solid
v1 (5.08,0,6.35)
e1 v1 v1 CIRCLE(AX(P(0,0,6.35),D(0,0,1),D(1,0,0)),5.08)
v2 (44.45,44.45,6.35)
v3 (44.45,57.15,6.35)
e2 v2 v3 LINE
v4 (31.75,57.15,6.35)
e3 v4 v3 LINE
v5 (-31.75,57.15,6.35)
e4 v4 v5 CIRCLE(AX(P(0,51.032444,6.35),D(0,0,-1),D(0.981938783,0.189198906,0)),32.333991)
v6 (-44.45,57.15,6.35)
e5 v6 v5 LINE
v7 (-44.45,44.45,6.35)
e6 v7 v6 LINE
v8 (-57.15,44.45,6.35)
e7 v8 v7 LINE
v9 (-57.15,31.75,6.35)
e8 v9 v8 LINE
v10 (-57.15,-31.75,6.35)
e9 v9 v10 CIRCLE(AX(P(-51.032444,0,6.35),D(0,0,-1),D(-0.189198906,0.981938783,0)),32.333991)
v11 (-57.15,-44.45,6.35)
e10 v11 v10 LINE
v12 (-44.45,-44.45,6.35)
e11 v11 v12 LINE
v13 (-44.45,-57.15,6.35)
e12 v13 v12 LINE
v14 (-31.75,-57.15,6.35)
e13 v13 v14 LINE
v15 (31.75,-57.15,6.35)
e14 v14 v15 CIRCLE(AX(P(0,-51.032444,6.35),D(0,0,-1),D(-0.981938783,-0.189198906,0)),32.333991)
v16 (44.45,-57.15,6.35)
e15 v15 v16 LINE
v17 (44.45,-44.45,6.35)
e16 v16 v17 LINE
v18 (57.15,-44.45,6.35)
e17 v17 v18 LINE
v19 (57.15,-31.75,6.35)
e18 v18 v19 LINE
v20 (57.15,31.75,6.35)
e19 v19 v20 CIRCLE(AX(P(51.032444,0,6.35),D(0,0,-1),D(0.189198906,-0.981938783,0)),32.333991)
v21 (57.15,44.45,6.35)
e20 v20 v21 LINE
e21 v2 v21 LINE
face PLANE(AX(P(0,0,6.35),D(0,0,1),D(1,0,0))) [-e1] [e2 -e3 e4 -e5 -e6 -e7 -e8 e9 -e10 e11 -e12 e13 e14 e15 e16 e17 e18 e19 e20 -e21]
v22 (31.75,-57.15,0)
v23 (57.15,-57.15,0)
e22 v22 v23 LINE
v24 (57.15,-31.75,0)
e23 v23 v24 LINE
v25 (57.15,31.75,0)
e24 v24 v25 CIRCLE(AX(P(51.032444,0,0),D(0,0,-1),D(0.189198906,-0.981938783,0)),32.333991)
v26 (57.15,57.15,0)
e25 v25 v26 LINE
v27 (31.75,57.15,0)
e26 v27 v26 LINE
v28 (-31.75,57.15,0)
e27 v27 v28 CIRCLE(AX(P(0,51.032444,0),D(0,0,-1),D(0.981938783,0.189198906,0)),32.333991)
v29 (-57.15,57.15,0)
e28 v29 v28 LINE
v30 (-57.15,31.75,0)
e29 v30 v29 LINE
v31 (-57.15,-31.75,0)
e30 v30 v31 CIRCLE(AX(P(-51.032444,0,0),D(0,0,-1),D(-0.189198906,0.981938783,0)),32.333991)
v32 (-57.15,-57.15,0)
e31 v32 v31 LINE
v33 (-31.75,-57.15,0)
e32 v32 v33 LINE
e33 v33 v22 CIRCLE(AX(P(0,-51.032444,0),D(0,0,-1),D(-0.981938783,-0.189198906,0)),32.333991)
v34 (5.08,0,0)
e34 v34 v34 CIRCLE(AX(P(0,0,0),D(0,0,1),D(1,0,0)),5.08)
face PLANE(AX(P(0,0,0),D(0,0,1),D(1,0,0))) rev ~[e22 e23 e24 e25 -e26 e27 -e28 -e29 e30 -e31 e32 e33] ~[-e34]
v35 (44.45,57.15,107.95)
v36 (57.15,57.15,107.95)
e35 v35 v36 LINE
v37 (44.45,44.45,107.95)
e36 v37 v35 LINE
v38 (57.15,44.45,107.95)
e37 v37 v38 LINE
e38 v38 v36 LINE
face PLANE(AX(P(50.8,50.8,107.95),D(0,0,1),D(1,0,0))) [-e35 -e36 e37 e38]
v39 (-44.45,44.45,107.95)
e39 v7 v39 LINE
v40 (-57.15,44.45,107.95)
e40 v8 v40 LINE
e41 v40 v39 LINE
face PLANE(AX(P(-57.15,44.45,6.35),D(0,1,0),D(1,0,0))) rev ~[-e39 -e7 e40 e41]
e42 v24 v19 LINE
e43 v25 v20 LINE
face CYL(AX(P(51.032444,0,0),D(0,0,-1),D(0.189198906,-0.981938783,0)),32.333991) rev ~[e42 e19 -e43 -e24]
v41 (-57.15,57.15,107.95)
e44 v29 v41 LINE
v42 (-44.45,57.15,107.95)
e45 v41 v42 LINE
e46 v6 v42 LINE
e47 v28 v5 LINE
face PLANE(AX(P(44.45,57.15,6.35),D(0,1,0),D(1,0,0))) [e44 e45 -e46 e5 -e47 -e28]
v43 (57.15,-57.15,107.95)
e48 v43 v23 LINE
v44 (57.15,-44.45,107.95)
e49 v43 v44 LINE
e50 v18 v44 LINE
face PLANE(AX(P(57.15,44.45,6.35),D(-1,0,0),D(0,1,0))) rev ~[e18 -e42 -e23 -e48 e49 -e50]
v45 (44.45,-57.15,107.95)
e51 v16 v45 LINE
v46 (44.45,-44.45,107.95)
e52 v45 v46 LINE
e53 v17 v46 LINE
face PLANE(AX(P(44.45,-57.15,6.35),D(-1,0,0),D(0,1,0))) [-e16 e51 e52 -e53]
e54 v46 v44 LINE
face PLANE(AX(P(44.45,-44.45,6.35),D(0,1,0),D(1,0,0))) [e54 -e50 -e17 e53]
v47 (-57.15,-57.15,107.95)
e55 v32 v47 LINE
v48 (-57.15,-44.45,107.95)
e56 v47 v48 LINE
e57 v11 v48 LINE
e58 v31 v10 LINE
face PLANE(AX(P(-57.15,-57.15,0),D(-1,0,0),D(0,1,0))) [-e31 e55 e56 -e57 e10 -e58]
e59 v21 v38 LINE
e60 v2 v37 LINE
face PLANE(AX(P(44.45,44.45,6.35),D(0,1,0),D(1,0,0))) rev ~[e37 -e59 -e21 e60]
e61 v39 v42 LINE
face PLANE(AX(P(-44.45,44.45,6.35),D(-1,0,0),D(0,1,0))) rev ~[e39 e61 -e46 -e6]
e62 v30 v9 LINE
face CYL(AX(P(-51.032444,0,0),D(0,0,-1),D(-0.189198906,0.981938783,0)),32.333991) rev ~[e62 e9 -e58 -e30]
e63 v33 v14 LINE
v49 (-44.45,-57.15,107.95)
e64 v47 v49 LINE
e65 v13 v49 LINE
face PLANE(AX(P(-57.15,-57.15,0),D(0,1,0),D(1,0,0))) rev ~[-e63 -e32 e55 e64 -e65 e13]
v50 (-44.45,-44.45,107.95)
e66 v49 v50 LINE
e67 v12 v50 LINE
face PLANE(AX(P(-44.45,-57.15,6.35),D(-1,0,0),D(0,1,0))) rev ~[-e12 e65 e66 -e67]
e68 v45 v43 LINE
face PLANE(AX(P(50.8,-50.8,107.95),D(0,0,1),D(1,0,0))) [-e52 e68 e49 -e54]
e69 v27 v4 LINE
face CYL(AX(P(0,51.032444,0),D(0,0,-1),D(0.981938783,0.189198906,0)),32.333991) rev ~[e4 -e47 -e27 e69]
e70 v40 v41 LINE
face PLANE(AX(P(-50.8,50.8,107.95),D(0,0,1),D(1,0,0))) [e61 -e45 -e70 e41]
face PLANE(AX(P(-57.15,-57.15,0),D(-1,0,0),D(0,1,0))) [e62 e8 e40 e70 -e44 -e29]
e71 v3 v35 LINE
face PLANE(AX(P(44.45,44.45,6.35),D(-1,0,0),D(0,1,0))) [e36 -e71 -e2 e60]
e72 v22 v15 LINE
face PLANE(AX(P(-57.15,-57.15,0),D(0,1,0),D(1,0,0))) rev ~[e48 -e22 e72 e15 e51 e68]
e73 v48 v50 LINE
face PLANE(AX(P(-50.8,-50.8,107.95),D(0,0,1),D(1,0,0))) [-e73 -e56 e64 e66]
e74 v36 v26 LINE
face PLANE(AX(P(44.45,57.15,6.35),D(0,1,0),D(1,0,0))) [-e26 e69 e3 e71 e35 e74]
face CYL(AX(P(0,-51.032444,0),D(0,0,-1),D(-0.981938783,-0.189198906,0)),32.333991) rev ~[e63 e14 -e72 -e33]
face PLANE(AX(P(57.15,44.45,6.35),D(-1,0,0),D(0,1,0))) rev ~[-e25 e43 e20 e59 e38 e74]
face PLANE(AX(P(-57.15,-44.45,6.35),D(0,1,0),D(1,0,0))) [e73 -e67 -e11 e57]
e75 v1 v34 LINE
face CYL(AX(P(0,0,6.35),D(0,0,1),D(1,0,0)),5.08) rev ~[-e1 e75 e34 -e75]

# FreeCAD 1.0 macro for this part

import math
import FreeCAD as App
import Part
import Sketcher
Q = App.Units.Quantity

doc = App.newDocument("Part")
params = doc.addObject("Spreadsheet::Sheet", "Params")
for row, (alias, value) in enumerate([
    ("sketch1_width", "4.5 in"),
    ("pad1_length", "0.25 in"),
    ("sketch2_diameter", "0.4 in"),
    ("pocket1_length", "1 in"),
    ("sketch3_width", "0.5 in"),
    ("pad2_length", "4 in"),
    ("sketch4_width", "2.5 in"),
], start=1):
    params.set(f"A{row}", alias)
    params.set(f"B{row}", "=" + value)
    params.setAlias(f"B{row}", alias)

body = doc.addObject("PartDesign::Body", "Body")

# Sketch on XY plane
sketch1 = body.newObject("Sketcher::SketchObject", "Sketch")
sketch1.AttachmentSupport = (doc.getObject("XY_Plane"), [""])
sketch1.MapMode = "FlatFace"
sketch1.addGeometry([
    Part.LineSegment(App.Vector(-57.15, 57.15, 0), App.Vector(-57.15, -57.15, 0)),
    Part.LineSegment(App.Vector(-57.15, -57.15, 0), App.Vector(57.15, -57.15, 0)),
    Part.LineSegment(App.Vector(57.15, -57.15, 0), App.Vector(57.15, 57.15, 0)),
    Part.LineSegment(App.Vector(57.15, 57.15, 0), App.Vector(-57.15, 57.15, 0)),
], False)
sketch1.addConstraint([
    Sketcher.Constraint("Coincident", 0, 2, 1, 1),
    Sketcher.Constraint("Coincident", 1, 2, 2, 1),
    Sketcher.Constraint("Coincident", 2, 2, 3, 1),
    Sketcher.Constraint("Coincident", 3, 2, 0, 1),
    Sketcher.Constraint("Vertical", 0),
    Sketcher.Constraint("Horizontal", 1),
    Sketcher.Constraint("Vertical", 2),
    Sketcher.Constraint("Horizontal", 3),
    Sketcher.Constraint("Symmetric", 0, 2, 2, 2, -1, 1),
    Sketcher.Constraint("Equal", 3, 0),
    Sketcher.Constraint("DistanceX", 1, 1, 1, 2, Q("4.5 in")),
])
sketch1.setExpression("Constraints[10]", "Params.sketch1_width")
pad1 = body.newObject("PartDesign::Pad", "Pad")
pad1.Profile = sketch1
pad1.setExpression("Length", "Params.pad1_length")

# Sketch on XY plane
sketch2 = body.newObject("Sketcher::SketchObject", "Sketch001")
sketch2.AttachmentSupport = (doc.getObject("XY_Plane"), [""])
sketch2.MapMode = "FlatFace"
sketch2.AttachmentOffset = App.Placement(App.Vector(0, 0, 0.25 * 25.4), App.Rotation())
sketch2.addGeometry(Part.Circle(App.Vector(0, 0, 0), App.Vector(0, 0, 1), 5.08), False)
sketch2.addConstraint([
    Sketcher.Constraint("Coincident", 0, 3, -1, 1),
    Sketcher.Constraint("Diameter", 0, Q("0.4 in")),
])
sketch2.setExpression("Constraints[1]", "Params.sketch2_diameter")
pocket1 = body.newObject("PartDesign::Pocket", "Pocket")
pocket1.Profile = sketch2
pocket1.setExpression("Length", "Params.pocket1_length")

# Sketch on XY plane
sketch3 = body.newObject("Sketcher::SketchObject", "Sketch002")
sketch3.AttachmentSupport = (doc.getObject("XY_Plane"), [""])
sketch3.MapMode = "FlatFace"
sketch3.AttachmentOffset = App.Placement(App.Vector(0, 0, 0.25 * 25.4), App.Rotation())
sketch3.addGeometry([
    Part.LineSegment(App.Vector(44.45, 57.15, 0), App.Vector(44.45, 44.45, 0)),  # 0
    Part.LineSegment(App.Vector(44.45, 44.45, 0), App.Vector(57.15, 44.45, 0)),  # 1
    Part.LineSegment(App.Vector(57.15, 44.45, 0), App.Vector(57.15, 57.15, 0)),  # 2
    Part.LineSegment(App.Vector(57.15, 57.15, 0), App.Vector(44.45, 57.15, 0)),  # 3
    Part.LineSegment(App.Vector(-57.15, 57.15, 0), App.Vector(-57.15, 44.45, 0)),  # 4
    Part.LineSegment(App.Vector(-57.15, 44.45, 0), App.Vector(-44.45, 44.45, 0)),  # 5
    Part.LineSegment(App.Vector(-44.45, 44.45, 0), App.Vector(-44.45, 57.15, 0)),  # 6
    Part.LineSegment(App.Vector(-44.45, 57.15, 0), App.Vector(-57.15, 57.15, 0)),  # 7
    Part.LineSegment(App.Vector(-57.15, -44.45, 0), App.Vector(-57.15, -57.15, 0)),  # 8
    Part.LineSegment(App.Vector(-57.15, -57.15, 0), App.Vector(-44.45, -57.15, 0)),  # 9
    Part.LineSegment(App.Vector(-44.45, -57.15, 0), App.Vector(-44.45, -44.45, 0)),  # 10
    Part.LineSegment(App.Vector(-44.45, -44.45, 0), App.Vector(-57.15, -44.45, 0)),  # 11
    Part.LineSegment(App.Vector(44.45, -44.45, 0), App.Vector(44.45, -57.15, 0)),  # 12
    Part.LineSegment(App.Vector(44.45, -57.15, 0), App.Vector(57.15, -57.15, 0)),  # 13
    Part.LineSegment(App.Vector(57.15, -57.15, 0), App.Vector(57.15, -44.45, 0)),  # 14
    Part.LineSegment(App.Vector(57.15, -44.45, 0), App.Vector(44.45, -44.45, 0)),  # 15
], False)
sketch3.addConstraint([
    Sketcher.Constraint("Coincident", 0, 2, 1, 1),
    Sketcher.Constraint("Coincident", 1, 2, 2, 1),
    Sketcher.Constraint("Coincident", 2, 2, 3, 1),
    Sketcher.Constraint("Coincident", 3, 2, 0, 1),
    Sketcher.Constraint("Coincident", 4, 2, 5, 1),
    Sketcher.Constraint("Coincident", 5, 2, 6, 1),
    Sketcher.Constraint("Coincident", 6, 2, 7, 1),
    Sketcher.Constraint("Coincident", 7, 2, 4, 1),
    Sketcher.Constraint("Coincident", 8, 2, 9, 1),
    Sketcher.Constraint("Coincident", 9, 2, 10, 1),
    Sketcher.Constraint("Coincident", 10, 2, 11, 1),
    Sketcher.Constraint("Coincident", 11, 2, 8, 1),
    Sketcher.Constraint("Coincident", 12, 2, 13, 1),
    Sketcher.Constraint("Coincident", 13, 2, 14, 1),
    Sketcher.Constraint("Coincident", 14, 2, 15, 1),
    Sketcher.Constraint("Coincident", 15, 2, 12, 1),
    Sketcher.Constraint("Vertical", 0),
    Sketcher.Constraint("Horizontal", 1),
    Sketcher.Constraint("Vertical", 2),
    Sketcher.Constraint("Horizontal", 3),
    Sketcher.Constraint("Vertical", 4),
    Sketcher.Constraint("Horizontal", 5),
    Sketcher.Constraint("Vertical", 6),
    Sketcher.Constraint("Horizontal", 7),
    Sketcher.Constraint("Vertical", 8),
    Sketcher.Constraint("Horizontal", 9),
    Sketcher.Constraint("Vertical", 10),
    Sketcher.Constraint("Horizontal", 11),
    Sketcher.Constraint("Vertical", 12),
    Sketcher.Constraint("Horizontal", 13),
    Sketcher.Constraint("Vertical", 14),
    Sketcher.Constraint("Horizontal", 15),
    Sketcher.Constraint("Symmetric", 2, 2, 8, 2, -1, 1),
    Sketcher.Constraint("Symmetric", 0, 2, 10, 2, -1, 1),
    Sketcher.Constraint("Symmetric", 6, 2, 12, 2, -1, 1),
    Sketcher.Constraint("Symmetric", 4, 2, 14, 2, -1, 1),
    Sketcher.Constraint("Symmetric", 1, 2, 4, 2, -2),
    Sketcher.Constraint("Symmetric", 3, 2, 6, 2, -2),
    Sketcher.Constraint("Equal", 15, 0),
    Sketcher.Constraint("DistanceX", 1, 1, 1, 2, Q("0.5 in")),
    Sketcher.Constraint("DistanceX", 4, 2, 0, 2, Q("4 in")),
    Sketcher.Constraint("DistanceY", 8, 2, 4, 2, Q("4 in")),
])
sketch3.setExpression("Constraints[39]", "Params.sketch3_width")
pad2 = body.newObject("PartDesign::Pad", "Pad001")
pad2.Profile = sketch3
pad2.setExpression("Length", "Params.pad2_length")

# Sketch on XY plane
sketch4 = body.newObject("Sketcher::SketchObject", "Sketch003")
sketch4.AttachmentSupport = (doc.getObject("XY_Plane"), [""])
sketch4.MapMode = "FlatFace"
sketch4.addGeometry([
    Part.LineSegment(App.Vector(-57.15, -31.75, 0), App.Vector(-57.15, 31.75, 0)),  # 0
    Part.ArcOfCircle(Part.Circle(App.Vector(-51.032444, 0, 0), App.Vector(0, 0, 1), 32.333991), math.radians(-100.906037), math.radians(100.906037)),  # 1
    Part.LineSegment(App.Vector(-31.75, 57.15, 0), App.Vector(31.75, 57.15, 0)),  # 2
    Part.ArcOfCircle(Part.Circle(App.Vector(0, 51.032444, 0), App.Vector(0, 0, 1), 32.333991), math.radians(169.093963), math.radians(370.906037)),  # 3
    Part.LineSegment(App.Vector(57.15, 31.75, 0), App.Vector(57.15, -31.75, 0)),  # 4
    Part.ArcOfCircle(Part.Circle(App.Vector(51.032444, 0, 0), App.Vector(0, 0, 1), 32.333991), math.radians(79.093963), math.radians(280.906037)),  # 5
    Part.LineSegment(App.Vector(31.75, -57.15, 0), App.Vector(-31.75, -57.15, 0)),  # 6
    Part.ArcOfCircle(Part.Circle(App.Vector(0, -51.032444, 0), App.Vector(0, 0, 1), 32.333991), math.radians(-10.906037), math.radians(190.906037)),  # 7
], False)
sketch4.addConstraint([
    Sketcher.Constraint("Coincident", 0, 1, 1, 1),
    Sketcher.Constraint("Coincident", 1, 2, 0, 2),
    Sketcher.Constraint("Coincident", 2, 1, 3, 1),
    Sketcher.Constraint("Coincident", 3, 2, 2, 2),
    Sketcher.Constraint("Coincident", 4, 1, 5, 1),
    Sketcher.Constraint("Coincident", 5, 2, 4, 2),
    Sketcher.Constraint("Coincident", 6, 1, 7, 1),
    Sketcher.Constraint("Coincident", 7, 2, 6, 2),
    Sketcher.Constraint("Vertical", 0),
    Sketcher.Constraint("Horizontal", 2),
    Sketcher.Constraint("Vertical", 4),
    Sketcher.Constraint("Horizontal", 6),
    Sketcher.Constraint("Equal", 1, 3),
    Sketcher.Constraint("Equal", 3, 5),
    Sketcher.Constraint("Equal", 5, 7),
    Sketcher.Constraint("Symmetric", 1, 3, 5, 3, -1, 1),
    Sketcher.Constraint("Symmetric", 3, 3, 7, 3, -1, 1),
    Sketcher.Constraint("Symmetric", 1, 2, 4, 1, -2),
    Sketcher.Constraint("Symmetric", 3, 2, 6, 1, -1),
    Sketcher.Constraint("Equal", 6, 0),
    Sketcher.Constraint("DistanceX", 2, 1, 2, 2, Q("2.5 in")),
    Sketcher.Constraint("DistanceX", 1, 2, 2, 1, Q("1 in")),
    Sketcher.Constraint("DistanceY", 1, 2, 2, 1, Q("1 in")),
    Sketcher.Constraint("Radius", 1, Q("32.333991 mm")),
])
sketch4.setExpression("Constraints[20]", "Params.sketch4_width")
pocket2 = body.newObject("PartDesign::Pocket", "Pocket001")
pocket2.Profile = sketch4
pocket2.Type = "ThroughAll"
pocket2.Reversed = True

doc.recompute()
